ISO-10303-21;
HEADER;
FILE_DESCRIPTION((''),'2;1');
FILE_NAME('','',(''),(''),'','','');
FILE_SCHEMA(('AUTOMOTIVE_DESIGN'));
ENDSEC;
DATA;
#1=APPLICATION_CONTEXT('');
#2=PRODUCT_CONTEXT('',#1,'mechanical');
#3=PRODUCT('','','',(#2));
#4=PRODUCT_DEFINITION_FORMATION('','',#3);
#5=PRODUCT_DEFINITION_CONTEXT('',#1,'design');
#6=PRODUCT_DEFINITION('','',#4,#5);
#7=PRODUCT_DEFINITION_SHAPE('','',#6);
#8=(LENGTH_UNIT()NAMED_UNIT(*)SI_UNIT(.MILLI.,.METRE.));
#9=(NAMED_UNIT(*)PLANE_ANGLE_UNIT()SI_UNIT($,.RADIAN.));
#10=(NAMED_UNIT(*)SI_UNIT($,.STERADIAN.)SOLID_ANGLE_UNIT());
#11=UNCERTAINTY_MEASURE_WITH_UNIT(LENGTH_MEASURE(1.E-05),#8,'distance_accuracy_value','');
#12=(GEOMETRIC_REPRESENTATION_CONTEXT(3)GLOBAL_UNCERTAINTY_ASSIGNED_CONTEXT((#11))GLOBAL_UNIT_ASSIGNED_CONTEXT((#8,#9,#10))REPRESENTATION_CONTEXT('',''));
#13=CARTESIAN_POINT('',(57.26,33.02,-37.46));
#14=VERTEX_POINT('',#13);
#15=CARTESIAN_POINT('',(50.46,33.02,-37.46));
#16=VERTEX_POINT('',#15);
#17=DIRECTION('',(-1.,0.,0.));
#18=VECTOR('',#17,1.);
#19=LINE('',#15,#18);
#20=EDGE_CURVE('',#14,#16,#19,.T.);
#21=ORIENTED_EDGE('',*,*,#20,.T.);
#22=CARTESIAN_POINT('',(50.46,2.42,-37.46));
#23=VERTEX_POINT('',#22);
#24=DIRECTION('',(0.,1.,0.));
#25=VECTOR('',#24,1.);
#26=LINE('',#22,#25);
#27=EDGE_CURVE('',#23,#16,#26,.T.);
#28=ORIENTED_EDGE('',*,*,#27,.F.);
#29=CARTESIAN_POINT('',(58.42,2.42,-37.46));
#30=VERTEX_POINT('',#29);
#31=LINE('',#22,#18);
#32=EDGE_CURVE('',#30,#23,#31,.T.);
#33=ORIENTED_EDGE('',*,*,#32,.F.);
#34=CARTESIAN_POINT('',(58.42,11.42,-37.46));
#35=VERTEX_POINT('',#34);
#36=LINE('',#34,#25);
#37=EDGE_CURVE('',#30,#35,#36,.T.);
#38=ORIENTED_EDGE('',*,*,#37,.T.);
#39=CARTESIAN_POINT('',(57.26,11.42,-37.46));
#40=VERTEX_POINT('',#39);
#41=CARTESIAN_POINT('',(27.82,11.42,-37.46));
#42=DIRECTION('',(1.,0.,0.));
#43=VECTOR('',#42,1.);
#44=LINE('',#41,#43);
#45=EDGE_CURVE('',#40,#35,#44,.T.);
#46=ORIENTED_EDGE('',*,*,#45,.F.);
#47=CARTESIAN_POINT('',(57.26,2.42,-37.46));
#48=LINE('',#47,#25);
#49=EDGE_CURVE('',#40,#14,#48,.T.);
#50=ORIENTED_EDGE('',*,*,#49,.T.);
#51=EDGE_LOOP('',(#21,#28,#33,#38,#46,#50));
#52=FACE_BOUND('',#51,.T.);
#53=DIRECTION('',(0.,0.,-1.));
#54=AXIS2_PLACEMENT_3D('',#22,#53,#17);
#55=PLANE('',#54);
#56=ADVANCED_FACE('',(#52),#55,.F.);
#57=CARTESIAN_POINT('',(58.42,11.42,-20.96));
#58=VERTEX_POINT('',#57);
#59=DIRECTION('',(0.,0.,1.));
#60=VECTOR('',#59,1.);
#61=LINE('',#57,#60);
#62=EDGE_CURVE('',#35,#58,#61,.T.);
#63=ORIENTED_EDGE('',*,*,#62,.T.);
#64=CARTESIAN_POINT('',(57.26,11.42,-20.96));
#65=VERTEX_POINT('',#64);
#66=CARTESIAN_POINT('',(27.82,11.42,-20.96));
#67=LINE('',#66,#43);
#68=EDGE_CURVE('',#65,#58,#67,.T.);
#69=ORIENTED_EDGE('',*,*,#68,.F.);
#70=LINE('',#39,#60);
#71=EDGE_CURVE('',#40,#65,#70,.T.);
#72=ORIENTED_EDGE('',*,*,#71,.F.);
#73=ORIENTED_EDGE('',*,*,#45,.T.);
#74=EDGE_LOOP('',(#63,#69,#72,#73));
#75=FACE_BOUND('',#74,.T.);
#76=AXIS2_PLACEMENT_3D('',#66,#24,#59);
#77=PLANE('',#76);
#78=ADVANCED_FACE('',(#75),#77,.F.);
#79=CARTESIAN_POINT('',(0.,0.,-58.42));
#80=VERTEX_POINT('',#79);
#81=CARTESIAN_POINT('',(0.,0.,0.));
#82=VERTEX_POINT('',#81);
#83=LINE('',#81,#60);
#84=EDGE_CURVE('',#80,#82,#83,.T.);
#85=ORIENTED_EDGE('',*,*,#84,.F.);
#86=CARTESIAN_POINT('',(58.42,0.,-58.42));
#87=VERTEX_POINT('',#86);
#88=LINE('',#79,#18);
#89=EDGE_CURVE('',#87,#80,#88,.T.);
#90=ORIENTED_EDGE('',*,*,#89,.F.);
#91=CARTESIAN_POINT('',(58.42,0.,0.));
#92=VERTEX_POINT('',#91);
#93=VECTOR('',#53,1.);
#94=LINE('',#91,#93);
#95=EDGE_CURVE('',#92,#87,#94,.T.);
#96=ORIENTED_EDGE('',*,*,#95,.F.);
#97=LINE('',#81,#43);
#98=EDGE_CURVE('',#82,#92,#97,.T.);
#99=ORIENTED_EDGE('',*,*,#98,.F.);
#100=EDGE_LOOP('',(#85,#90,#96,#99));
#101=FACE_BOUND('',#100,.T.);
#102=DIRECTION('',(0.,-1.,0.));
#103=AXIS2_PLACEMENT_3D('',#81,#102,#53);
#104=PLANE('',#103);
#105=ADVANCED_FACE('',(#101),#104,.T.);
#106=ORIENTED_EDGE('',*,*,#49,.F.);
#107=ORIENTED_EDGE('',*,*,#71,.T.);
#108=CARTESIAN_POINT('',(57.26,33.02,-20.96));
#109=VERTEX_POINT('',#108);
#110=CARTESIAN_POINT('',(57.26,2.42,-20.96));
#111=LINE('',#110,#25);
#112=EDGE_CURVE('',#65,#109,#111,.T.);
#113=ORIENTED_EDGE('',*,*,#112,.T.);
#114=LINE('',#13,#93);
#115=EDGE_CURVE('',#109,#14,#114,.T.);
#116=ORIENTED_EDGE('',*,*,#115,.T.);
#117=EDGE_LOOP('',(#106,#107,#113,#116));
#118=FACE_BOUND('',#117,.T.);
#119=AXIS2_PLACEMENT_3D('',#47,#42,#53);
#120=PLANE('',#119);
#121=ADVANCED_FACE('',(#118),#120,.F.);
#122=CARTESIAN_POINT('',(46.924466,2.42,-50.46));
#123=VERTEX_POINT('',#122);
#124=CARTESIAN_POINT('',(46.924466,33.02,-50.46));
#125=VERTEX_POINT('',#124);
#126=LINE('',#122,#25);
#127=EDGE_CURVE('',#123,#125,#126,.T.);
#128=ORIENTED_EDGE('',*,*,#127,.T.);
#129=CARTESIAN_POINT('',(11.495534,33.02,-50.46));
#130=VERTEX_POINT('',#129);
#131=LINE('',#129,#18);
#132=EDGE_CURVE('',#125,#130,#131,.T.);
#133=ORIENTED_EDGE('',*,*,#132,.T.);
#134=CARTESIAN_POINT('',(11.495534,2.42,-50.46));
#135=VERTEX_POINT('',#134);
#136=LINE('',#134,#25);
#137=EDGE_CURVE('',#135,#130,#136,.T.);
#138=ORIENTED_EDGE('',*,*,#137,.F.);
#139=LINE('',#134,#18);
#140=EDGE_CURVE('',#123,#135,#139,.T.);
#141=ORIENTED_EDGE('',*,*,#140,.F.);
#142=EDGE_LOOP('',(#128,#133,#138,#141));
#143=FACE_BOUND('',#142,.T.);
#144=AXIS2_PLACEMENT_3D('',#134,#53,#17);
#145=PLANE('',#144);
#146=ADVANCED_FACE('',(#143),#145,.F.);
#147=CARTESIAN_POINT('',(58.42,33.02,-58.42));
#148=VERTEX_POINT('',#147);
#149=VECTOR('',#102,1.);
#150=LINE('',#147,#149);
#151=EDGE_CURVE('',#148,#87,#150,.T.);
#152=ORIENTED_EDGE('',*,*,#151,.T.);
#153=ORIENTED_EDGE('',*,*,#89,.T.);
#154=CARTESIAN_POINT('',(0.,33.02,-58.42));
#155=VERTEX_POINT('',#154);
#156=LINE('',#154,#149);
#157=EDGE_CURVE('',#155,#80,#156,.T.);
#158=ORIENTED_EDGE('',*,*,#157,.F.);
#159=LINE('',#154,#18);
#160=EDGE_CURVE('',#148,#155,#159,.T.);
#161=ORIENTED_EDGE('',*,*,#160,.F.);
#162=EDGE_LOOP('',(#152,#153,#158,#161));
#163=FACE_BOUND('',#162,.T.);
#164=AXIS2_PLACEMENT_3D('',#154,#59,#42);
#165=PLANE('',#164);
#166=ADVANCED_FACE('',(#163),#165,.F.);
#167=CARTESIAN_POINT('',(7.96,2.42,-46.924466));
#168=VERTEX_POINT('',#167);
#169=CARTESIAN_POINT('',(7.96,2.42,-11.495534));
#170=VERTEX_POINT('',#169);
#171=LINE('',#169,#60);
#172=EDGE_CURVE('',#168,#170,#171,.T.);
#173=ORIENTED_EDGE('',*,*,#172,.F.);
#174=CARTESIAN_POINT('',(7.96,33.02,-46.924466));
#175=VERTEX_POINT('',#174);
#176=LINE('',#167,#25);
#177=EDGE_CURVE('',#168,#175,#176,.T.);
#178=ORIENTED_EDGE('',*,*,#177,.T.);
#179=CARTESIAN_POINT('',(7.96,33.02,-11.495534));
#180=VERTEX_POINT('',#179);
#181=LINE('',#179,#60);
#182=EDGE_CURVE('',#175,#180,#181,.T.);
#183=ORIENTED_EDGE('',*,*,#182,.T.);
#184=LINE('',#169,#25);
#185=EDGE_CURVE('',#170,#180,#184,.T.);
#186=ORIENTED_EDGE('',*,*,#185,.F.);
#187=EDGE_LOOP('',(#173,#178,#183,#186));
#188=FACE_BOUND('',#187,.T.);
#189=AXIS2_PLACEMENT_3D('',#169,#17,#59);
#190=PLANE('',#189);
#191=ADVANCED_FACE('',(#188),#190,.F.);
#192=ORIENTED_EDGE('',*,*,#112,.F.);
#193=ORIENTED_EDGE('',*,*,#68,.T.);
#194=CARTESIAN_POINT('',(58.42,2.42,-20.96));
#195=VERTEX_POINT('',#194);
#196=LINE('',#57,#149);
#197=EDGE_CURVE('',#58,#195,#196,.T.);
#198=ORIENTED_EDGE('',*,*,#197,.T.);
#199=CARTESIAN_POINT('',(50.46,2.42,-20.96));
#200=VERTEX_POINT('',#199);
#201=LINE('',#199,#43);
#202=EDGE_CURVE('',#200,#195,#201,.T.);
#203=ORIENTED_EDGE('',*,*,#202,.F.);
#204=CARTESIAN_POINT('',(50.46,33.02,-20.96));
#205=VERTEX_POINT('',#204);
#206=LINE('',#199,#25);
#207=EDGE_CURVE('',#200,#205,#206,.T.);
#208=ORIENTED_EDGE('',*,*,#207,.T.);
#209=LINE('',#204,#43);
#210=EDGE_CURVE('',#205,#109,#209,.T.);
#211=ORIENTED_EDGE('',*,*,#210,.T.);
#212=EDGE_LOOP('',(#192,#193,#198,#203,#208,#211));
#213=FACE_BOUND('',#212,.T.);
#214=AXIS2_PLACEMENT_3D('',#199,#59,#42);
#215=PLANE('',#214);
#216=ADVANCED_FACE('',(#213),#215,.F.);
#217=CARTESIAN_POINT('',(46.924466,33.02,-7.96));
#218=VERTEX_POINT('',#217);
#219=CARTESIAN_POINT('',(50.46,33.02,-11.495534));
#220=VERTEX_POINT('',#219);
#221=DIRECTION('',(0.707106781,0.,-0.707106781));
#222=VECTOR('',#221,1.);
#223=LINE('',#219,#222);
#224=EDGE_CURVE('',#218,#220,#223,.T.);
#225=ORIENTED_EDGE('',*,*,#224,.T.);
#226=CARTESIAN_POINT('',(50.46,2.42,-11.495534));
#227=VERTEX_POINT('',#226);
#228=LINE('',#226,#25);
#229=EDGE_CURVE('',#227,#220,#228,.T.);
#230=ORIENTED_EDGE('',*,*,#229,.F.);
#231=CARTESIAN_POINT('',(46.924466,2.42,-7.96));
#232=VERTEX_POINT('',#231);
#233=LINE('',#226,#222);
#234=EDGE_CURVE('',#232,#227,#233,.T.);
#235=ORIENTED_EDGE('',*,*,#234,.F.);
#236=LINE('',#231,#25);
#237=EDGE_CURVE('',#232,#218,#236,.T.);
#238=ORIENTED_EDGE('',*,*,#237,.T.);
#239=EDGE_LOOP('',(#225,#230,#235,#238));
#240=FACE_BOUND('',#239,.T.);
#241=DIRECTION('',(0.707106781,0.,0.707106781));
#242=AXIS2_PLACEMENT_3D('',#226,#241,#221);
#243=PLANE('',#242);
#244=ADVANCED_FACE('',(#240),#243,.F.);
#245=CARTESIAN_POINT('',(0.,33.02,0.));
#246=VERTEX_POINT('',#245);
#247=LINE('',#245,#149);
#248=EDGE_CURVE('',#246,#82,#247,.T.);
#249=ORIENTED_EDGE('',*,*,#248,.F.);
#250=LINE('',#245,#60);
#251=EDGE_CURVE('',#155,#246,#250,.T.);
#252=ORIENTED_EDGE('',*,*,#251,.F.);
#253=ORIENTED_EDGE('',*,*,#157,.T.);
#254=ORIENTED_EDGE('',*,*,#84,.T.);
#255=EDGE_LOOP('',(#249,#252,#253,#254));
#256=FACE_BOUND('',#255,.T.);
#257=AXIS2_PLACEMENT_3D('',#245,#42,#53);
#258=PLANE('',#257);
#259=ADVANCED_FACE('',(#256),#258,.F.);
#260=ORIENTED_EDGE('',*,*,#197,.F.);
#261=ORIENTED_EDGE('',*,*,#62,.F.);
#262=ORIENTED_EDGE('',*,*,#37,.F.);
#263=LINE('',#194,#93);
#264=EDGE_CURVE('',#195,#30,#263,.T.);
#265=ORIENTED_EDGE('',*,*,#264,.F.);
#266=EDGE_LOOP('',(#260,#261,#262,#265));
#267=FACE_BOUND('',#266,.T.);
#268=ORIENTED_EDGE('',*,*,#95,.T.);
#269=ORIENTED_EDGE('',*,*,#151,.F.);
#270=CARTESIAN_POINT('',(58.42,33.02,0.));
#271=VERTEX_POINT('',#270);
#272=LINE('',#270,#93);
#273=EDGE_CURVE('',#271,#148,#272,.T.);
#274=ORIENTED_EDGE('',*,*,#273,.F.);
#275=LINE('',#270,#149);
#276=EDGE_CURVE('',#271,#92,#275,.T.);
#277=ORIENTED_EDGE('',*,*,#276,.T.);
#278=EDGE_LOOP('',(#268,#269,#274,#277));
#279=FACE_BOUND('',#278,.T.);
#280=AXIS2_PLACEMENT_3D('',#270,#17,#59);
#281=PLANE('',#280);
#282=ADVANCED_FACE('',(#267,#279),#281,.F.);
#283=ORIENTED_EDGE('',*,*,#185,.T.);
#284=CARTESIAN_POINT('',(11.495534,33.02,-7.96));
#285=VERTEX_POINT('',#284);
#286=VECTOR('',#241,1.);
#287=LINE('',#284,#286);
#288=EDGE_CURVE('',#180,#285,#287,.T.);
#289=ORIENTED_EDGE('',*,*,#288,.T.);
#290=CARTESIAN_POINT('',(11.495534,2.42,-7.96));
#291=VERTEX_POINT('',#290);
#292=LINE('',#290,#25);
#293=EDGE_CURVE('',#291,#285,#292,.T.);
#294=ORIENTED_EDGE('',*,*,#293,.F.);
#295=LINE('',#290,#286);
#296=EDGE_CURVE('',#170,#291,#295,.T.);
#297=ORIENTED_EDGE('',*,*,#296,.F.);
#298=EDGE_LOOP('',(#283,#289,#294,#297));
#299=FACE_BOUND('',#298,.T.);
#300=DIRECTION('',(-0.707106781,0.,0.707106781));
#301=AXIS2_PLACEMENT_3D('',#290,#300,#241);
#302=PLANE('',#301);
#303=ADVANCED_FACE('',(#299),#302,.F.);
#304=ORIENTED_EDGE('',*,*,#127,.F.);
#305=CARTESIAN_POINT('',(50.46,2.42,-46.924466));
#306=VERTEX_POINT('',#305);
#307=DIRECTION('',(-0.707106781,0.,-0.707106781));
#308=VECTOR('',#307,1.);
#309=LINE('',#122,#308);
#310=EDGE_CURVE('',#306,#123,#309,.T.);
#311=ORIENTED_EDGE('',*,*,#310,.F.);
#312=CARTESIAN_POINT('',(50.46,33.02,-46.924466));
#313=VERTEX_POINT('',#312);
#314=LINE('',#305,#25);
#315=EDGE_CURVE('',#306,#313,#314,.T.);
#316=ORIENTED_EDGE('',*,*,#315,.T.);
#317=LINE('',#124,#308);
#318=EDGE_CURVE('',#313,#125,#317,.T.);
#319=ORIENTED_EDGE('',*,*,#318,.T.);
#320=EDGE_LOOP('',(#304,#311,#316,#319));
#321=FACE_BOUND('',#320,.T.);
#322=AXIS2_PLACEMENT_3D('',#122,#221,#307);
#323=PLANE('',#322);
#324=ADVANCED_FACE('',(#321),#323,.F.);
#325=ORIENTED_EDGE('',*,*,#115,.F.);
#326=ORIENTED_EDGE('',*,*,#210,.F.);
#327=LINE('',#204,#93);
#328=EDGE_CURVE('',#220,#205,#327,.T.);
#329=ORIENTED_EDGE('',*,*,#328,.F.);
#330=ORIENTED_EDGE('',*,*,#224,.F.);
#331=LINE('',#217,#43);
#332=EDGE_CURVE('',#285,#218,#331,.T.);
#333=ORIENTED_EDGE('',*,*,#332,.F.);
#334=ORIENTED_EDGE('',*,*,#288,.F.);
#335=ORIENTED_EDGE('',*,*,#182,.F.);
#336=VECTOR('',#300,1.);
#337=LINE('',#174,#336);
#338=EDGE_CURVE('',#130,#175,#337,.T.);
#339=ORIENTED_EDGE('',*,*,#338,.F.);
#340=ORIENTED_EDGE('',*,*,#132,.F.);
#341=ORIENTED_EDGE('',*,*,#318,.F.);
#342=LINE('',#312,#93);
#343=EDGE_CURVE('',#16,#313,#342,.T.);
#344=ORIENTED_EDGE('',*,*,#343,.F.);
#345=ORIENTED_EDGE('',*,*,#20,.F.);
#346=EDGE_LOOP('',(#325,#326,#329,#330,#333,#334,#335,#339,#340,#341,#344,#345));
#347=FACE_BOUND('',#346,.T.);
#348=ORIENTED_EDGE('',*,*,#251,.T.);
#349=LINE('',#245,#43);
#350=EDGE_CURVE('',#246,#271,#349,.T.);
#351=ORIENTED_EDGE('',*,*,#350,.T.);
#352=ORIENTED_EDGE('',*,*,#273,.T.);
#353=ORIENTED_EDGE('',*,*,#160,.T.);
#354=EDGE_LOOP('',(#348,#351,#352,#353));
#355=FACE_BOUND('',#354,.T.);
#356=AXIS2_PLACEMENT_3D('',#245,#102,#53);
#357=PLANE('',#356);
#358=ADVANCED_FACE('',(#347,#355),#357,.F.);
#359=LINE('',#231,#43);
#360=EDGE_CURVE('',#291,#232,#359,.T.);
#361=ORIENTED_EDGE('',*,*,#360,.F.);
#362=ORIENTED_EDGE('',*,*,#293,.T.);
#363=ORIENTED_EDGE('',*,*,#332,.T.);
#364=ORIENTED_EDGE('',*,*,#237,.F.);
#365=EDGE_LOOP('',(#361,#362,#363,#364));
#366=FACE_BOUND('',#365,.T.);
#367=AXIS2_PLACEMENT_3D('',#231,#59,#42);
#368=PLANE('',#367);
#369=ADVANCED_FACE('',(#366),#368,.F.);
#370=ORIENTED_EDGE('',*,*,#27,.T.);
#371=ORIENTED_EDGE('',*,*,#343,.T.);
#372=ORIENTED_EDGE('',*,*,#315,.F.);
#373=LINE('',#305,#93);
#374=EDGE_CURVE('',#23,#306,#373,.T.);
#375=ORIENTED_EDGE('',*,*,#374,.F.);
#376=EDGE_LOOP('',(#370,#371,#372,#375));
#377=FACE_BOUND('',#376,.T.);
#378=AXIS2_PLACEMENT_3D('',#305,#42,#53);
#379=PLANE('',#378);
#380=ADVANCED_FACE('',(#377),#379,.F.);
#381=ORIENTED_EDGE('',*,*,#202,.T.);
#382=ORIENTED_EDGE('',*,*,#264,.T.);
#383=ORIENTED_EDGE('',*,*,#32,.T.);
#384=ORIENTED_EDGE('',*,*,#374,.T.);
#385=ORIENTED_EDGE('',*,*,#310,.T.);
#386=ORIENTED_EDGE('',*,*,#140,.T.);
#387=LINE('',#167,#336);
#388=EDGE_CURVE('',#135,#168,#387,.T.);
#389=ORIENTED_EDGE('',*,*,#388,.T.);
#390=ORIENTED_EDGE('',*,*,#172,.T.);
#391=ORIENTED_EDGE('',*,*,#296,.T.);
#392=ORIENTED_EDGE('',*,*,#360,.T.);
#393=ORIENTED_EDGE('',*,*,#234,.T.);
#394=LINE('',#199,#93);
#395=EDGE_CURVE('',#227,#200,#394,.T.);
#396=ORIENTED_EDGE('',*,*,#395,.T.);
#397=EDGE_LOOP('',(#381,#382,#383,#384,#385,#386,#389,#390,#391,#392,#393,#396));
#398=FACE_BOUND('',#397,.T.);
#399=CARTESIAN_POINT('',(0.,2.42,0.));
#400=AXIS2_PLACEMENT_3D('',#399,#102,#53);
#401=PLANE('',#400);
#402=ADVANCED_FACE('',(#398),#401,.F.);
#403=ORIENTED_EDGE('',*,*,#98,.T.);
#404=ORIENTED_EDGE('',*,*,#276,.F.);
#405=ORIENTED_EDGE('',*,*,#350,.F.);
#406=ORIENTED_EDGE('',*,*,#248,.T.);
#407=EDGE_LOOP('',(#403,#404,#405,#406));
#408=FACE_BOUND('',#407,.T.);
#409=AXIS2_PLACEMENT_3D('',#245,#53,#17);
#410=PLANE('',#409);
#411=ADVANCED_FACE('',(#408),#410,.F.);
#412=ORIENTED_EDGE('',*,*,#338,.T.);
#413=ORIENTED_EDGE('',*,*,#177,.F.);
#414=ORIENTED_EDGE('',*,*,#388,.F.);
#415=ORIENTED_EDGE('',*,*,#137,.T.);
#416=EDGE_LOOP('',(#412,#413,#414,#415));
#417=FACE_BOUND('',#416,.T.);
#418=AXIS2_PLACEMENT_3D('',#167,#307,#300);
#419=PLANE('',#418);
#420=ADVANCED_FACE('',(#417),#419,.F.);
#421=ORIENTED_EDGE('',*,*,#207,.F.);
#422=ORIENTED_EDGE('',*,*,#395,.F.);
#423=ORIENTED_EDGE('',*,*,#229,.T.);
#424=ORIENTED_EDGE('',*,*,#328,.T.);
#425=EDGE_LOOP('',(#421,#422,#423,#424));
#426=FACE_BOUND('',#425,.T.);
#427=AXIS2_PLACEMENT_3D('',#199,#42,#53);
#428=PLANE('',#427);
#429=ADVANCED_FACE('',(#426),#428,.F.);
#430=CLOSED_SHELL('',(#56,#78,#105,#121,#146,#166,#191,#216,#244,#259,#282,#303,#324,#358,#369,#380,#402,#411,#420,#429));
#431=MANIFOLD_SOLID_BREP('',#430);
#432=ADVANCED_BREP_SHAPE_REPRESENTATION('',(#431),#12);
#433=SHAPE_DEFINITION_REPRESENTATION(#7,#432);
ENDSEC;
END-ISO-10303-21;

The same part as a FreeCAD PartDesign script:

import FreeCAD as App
import Part
import Sketcher


def add_polygon(sketch, points):
    """Adds a closed chain of lines whose ends are joined by coincident constraints."""
    first, n = sketch.GeometryCount, len(points)
    for a, b in zip(points, points[1:] + points[:1]):
        sketch.addGeometry(Part.LineSegment(App.Vector(*a, 0), App.Vector(*b, 0)), False)
    for i in range(n):
        sketch.addConstraint(Sketcher.Constraint("Coincident", first + i, 2, first + (i + 1) % n, 1))

doc = App.newDocument("Part")
params = doc.addObject("Spreadsheet::Sheet", "Params")
for row, (alias, value) in enumerate([
    ("sketch1_width", "58.42 mm"),
    ("pad1_length", "33.02 mm"),
    ("sketch2_length", "5 mm"),
    ("sketch2_width", "6.8 mm"),
    ("sketch2_height", "16.5 mm"),
    ("pocket1_length", "30.6 mm"),
    ("sketch3_width", "9 mm"),
    ("sketch3_height", "16.5 mm"),
    ("pocket2_length", "30.6 mm"),
], start=1):
    params.set(f"A{row}", alias)
    params.set(f"B{row}", "=" + value)
    params.setAlias(f"B{row}", alias)

body = doc.addObject("PartDesign::Body", "Body")

# Sketch on XZ plane
sketch1 = body.newObject("Sketcher::SketchObject", "Sketch")
sketch1.AttachmentSupport = (doc.getObject("XZ_Plane"), [""])
sketch1.MapMode = "FlatFace"
add_polygon(sketch1, [(0, -58), (0, 0), (58, 0), (58, -58)])  # lines 0-3
sketch1.addConstraint([
    Sketcher.Constraint("Vertical", 0),
    Sketcher.Constraint("Horizontal", 1),
    Sketcher.Constraint("Vertical", 2),
    Sketcher.Constraint("Horizontal", 3),
    Sketcher.Constraint("Coincident", 0, 2, -1, 1),
    Sketcher.Constraint("Equal", 3, 0),
    Sketcher.Constraint("DistanceX", 1, 1, 1, 2, 58.42),
])
sketch1.setExpression("Constraints[10]", "Params.sketch1_width")
pad1 = body.newObject("PartDesign::Pad", "Pad")
pad1.Profile = sketch1
pad1.setExpression("Length", "Params.pad1_length")
pad1.Reversed = True

# Sketch on XZ plane
sketch2 = body.newObject("Sketcher::SketchObject", "Sketch001")
sketch2.AttachmentSupport = (doc.getObject("XZ_Plane"), [""])
sketch2.MapMode = "FlatFace"
sketch2.AttachmentOffset = App.Placement(App.Vector(0, 0, -33.02), App.Rotation())
add_polygon(sketch2, [(47, -50), (11, -50), (8, -47), (8, -11), (11, -8), (47, -8), (50, -11), (50, -21), (57, -21), (57, -37), (50, -37), (50, -47)])  # lines 0-11
sketch2.addConstraint([
    Sketcher.Constraint("Horizontal", 0),
    Sketcher.Constraint("Vertical", 2),
    Sketcher.Constraint("Horizontal", 4),
    Sketcher.Constraint("Vertical", 6),
    Sketcher.Constraint("Horizontal", 7),
    Sketcher.Constraint("Vertical", 8),
    Sketcher.Constraint("Horizontal", 9),
    Sketcher.Constraint("Vertical", 10),
    Sketcher.Constraint("Perpendicular", 1, 3),
    Sketcher.Constraint("Perpendicular", 3, 5),
    Sketcher.Constraint("Perpendicular", 5, 11),
    Sketcher.Constraint("Horizontal", 2, 2, 5, 2),
    Sketcher.Constraint("Horizontal", 1, 2, 10, 2),
    Sketcher.Constraint("Vertical", 0, 2, 3, 2),
    Sketcher.Constraint("Vertical", 6, 2, 9, 2),
    Sketcher.Constraint("Vertical", 4, 2, 11, 2),
    Sketcher.Constraint("Equal", 4, 2),
    Sketcher.Constraint("Equal", 6, 10),
    Sketcher.Constraint("Distance", 1, 5.0),
    Sketcher.Constraint("DistanceX", 7, 1, 7, 2, 6.8),
    Sketcher.Constraint("DistanceY", 8, 2, 8, 1, 16.5),
    Sketcher.Constraint("DistanceY", 6, 2, 4, 2, 13.0),
    Sketcher.Constraint("DistanceY", 0, 2, -1, 1, 50.46),
    Sketcher.Constraint("DistanceX", -1, 1, 1, 2, 7.96),
])
sketch2.setExpression("Constraints[30]", "Params.sketch2_length")
sketch2.setExpression("Constraints[31]", "Params.sketch2_width")
sketch2.setExpression("Constraints[32]", "Params.sketch2_height")
pocket1 = body.newObject("PartDesign::Pocket", "Pocket")
pocket1.Profile = sketch2
pocket1.setExpression("Length", "Params.pocket1_length")
pocket1.Reversed = True

# Sketch on YZ plane
sketch3 = body.newObject("Sketcher::SketchObject", "Sketch002")
sketch3.AttachmentSupport = (doc.getObject("YZ_Plane"), [""])
sketch3.MapMode = "FlatFace"
sketch3.AttachmentOffset = App.Placement(App.Vector(0, 0, 58.42), App.Rotation())
add_polygon(sketch3, [(11, -21), (2, -21), (2, -37), (11, -37)])  # lines 0-3
sketch3.addConstraint([
    Sketcher.Constraint("Horizontal", 0),
    Sketcher.Constraint("Vertical", 1),
    Sketcher.Constraint("Horizontal", 2),
    Sketcher.Constraint("Vertical", 3),
    Sketcher.Constraint("DistanceX", 0, 2, 0, 1, 9.0),
    Sketcher.Constraint("DistanceY", 1, 2, 1, 1, 16.5),
    Sketcher.Constraint("DistanceX", -1, 1, 0, 2, 2.42),
    Sketcher.Constraint("DistanceY", 0, 2, -1, 1, 20.96),
])
sketch3.setExpression("Constraints[8]", "Params.sketch3_width")
sketch3.setExpression("Constraints[9]", "Params.sketch3_height")
pocket2 = body.newObject("PartDesign::Pocket", "Pocket001")
pocket2.Profile = sketch3
pocket2.setExpression("Length", "Params.pocket2_length")

doc.recompute()
